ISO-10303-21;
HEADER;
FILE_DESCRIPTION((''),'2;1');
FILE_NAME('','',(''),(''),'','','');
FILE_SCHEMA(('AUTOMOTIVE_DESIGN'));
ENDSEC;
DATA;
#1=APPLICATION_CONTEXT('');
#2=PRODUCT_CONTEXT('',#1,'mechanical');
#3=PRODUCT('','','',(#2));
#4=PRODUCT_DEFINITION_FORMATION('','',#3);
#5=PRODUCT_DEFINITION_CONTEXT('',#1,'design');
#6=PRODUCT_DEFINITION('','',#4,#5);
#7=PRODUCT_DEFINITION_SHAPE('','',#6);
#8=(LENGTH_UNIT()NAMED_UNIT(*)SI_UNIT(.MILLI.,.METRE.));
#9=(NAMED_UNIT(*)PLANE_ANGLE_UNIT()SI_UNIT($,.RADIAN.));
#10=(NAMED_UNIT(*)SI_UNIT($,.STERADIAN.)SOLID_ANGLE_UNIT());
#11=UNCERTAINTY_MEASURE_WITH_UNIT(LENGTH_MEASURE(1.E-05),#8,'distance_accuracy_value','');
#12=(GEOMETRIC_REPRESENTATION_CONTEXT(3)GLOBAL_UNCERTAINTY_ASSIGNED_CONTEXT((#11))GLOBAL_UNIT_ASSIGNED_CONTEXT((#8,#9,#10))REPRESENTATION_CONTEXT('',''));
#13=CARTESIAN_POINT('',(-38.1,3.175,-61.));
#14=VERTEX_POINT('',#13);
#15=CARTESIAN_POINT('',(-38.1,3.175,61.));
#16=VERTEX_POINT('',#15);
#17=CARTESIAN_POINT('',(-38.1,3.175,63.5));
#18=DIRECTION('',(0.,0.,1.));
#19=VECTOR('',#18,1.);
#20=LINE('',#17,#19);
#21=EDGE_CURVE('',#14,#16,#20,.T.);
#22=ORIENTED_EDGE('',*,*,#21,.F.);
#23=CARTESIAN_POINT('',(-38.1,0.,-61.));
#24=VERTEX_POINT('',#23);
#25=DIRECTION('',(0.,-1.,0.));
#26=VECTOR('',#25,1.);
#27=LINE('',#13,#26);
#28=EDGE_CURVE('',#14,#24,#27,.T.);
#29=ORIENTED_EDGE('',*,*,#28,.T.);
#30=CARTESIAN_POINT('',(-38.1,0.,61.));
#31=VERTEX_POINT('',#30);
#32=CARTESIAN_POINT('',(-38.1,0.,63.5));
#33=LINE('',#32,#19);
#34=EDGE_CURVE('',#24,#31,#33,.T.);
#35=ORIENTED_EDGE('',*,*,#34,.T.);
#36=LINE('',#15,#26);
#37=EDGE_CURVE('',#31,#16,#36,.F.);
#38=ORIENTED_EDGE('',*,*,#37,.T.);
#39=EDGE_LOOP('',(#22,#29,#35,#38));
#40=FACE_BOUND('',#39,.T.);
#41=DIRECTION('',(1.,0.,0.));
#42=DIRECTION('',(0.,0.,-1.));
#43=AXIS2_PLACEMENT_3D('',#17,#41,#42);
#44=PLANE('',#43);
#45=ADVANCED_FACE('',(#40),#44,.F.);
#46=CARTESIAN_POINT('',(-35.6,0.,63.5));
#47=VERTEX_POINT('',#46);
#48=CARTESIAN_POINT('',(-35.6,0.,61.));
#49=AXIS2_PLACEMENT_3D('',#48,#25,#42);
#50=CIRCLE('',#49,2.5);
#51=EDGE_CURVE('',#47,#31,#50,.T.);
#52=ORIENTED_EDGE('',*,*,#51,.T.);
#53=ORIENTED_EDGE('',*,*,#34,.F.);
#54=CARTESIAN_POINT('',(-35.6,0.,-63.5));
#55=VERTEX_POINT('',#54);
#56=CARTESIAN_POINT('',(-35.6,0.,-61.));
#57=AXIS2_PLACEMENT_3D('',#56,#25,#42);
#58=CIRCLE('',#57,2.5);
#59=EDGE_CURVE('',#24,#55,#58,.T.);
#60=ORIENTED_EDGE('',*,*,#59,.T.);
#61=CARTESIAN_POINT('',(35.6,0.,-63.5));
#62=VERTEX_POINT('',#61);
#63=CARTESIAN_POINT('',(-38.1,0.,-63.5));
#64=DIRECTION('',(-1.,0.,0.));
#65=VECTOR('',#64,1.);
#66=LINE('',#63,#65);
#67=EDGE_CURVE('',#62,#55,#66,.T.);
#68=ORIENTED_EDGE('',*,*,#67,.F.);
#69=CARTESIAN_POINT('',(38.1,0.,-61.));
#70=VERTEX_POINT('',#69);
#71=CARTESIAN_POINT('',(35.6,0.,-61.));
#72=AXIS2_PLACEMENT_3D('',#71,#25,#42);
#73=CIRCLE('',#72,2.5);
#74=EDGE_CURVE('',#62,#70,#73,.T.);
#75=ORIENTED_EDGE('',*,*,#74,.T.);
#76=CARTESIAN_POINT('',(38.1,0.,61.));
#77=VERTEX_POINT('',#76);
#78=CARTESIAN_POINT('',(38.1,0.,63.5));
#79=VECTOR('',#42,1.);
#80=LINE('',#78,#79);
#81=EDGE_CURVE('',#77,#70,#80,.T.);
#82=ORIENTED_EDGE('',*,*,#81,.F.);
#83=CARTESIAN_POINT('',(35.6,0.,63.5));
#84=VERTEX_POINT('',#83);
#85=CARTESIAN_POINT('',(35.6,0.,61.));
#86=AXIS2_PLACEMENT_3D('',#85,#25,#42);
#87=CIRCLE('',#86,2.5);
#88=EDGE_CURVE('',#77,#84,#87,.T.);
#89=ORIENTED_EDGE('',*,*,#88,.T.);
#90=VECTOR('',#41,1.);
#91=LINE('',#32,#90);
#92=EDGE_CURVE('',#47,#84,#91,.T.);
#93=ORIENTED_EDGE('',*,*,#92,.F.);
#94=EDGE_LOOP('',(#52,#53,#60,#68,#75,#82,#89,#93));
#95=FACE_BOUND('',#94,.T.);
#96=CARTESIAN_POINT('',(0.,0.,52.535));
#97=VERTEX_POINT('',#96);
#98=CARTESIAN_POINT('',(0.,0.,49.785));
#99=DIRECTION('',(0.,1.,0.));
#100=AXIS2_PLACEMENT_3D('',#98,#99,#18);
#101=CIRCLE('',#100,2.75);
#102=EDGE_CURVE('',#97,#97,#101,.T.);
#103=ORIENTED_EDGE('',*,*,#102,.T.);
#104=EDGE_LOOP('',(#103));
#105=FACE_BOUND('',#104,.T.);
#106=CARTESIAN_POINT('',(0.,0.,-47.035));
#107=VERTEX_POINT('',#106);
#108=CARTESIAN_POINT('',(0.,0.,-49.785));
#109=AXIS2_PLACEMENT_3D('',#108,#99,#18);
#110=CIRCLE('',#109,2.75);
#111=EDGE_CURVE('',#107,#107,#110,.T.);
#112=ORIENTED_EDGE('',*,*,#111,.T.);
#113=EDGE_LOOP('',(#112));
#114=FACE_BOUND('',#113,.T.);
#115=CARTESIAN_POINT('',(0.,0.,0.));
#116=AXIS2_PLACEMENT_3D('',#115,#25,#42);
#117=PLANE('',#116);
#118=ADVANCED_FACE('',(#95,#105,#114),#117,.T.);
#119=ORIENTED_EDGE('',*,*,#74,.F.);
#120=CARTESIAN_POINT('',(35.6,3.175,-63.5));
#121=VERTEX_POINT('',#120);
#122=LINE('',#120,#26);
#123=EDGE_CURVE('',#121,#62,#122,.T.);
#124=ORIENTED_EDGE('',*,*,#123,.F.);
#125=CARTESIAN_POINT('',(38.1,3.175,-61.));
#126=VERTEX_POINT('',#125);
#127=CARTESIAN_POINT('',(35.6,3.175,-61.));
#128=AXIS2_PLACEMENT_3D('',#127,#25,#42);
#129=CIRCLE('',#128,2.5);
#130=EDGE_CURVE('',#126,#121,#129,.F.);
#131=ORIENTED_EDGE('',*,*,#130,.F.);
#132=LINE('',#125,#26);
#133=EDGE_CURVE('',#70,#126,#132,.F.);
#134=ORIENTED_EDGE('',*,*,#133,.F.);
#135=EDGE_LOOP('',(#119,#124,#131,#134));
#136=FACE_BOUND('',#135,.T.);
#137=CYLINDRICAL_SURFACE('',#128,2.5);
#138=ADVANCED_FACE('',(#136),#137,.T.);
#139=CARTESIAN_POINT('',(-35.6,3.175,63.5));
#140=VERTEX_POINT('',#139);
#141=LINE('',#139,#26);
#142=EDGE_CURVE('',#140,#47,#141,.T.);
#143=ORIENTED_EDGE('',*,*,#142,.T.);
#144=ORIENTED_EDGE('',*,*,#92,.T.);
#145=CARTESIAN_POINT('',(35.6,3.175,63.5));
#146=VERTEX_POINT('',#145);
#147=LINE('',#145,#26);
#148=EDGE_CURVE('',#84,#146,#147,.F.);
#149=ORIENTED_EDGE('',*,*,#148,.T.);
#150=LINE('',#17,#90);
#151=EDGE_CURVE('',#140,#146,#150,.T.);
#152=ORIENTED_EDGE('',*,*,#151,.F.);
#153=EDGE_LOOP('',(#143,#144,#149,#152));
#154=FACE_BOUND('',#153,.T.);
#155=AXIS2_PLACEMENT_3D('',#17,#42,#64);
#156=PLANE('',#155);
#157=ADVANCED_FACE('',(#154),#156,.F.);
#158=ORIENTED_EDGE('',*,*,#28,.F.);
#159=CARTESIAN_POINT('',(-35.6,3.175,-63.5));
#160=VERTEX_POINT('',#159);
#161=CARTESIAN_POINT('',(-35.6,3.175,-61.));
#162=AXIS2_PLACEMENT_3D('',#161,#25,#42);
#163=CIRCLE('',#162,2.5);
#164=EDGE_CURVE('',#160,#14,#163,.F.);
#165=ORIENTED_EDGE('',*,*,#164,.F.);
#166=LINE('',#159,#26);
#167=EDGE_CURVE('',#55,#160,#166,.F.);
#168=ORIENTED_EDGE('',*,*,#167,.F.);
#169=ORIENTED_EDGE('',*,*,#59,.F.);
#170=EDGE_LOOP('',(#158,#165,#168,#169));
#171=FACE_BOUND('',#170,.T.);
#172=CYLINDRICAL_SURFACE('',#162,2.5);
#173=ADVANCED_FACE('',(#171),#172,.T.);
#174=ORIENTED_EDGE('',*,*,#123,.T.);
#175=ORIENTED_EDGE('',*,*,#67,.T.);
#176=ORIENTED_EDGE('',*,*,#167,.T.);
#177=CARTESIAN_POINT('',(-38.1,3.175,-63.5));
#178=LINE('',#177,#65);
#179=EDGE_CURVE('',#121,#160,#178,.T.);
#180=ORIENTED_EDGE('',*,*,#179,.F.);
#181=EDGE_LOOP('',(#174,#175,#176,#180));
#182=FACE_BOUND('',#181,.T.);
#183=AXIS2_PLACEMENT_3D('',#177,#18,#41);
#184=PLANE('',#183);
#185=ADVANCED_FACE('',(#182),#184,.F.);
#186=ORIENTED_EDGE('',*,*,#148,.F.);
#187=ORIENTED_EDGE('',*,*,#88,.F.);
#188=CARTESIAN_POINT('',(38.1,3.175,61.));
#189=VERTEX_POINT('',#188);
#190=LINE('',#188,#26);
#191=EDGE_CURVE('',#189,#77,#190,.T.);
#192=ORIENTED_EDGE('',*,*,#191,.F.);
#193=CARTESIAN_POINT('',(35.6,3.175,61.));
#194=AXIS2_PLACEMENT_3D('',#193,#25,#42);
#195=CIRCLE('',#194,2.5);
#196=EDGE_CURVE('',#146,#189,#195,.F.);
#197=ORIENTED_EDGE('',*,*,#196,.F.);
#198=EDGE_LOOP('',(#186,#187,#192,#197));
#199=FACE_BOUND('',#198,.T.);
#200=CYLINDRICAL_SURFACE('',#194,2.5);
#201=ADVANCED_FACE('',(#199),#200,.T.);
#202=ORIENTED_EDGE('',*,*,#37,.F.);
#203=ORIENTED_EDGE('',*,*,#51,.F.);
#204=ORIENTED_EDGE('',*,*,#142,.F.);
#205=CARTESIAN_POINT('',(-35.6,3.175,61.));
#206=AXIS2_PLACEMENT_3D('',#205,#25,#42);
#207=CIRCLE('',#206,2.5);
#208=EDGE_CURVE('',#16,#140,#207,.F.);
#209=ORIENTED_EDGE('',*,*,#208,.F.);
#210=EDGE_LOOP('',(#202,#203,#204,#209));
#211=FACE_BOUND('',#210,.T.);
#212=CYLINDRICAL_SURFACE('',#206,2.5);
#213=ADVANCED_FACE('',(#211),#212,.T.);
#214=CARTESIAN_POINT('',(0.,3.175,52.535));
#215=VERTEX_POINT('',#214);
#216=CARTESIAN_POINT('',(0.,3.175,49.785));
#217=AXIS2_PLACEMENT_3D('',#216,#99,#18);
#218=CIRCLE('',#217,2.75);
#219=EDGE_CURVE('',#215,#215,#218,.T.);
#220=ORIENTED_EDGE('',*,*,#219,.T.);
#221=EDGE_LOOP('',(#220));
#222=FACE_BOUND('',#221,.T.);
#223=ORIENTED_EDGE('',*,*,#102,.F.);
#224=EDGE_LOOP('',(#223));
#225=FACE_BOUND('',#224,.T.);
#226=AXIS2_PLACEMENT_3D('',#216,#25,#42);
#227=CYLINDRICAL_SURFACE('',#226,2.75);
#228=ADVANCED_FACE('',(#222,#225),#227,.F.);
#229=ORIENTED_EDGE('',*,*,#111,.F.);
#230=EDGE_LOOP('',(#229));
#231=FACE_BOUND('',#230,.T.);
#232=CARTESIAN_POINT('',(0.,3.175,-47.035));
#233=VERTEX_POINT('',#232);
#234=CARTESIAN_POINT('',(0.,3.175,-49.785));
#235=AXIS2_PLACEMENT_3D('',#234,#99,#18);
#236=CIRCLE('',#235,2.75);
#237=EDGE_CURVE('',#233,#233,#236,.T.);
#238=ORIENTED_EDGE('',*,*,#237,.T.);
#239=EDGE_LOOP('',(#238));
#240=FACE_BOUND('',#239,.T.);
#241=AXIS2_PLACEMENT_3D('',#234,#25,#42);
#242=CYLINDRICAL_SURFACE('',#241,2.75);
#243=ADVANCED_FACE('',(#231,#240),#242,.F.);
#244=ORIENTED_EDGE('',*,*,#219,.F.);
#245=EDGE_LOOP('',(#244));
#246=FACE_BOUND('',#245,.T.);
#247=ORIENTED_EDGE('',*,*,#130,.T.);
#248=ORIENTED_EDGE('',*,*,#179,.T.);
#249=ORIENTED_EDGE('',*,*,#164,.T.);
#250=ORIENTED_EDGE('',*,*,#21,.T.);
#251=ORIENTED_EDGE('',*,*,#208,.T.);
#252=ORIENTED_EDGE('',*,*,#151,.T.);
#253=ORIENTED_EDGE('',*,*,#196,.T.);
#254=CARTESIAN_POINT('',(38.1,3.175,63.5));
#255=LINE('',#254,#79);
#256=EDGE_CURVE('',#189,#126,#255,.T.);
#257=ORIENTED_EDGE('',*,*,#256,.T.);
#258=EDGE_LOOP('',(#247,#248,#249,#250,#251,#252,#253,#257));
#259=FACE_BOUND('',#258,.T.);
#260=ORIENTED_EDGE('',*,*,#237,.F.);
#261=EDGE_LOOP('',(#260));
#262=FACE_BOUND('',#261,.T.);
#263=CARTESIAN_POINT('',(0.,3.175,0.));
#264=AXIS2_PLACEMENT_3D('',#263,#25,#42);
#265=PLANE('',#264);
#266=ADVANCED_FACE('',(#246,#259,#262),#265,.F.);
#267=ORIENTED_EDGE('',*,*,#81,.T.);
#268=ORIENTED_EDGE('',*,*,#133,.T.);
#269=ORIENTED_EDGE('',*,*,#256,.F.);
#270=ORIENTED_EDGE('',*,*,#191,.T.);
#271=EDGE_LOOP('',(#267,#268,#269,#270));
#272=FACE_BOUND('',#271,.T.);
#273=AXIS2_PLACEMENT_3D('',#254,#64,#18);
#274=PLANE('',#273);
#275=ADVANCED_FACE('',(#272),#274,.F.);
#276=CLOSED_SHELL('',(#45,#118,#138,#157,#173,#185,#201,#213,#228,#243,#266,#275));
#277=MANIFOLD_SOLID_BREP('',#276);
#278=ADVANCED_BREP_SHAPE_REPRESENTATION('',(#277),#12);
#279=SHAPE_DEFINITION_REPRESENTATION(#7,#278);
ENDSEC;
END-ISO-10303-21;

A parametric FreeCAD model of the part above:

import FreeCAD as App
import Part
import Sketcher
Q = App.Units.Quantity


def edges_at(feature, points):
    """Names of the edges that pass closest to the given points."""
    edges = feature.Shape.Edges
    near = lambda p: min(range(len(edges)), key=lambda i: edges[i].distToShape(Part.Vertex(*p))[0])
    return sorted({f"Edge{near(p) + 1}" for p in points})

doc = App.newDocument("Part")
params = doc.addObject("Spreadsheet::Sheet", "Params")
for row, (alias, value) in enumerate([
    ("sketch1_width", "3 in"),
    ("sketch1_height", "5 in"),
    ("pad1_length", "0.125 in"),
    ("fillet_radius", "2.5 mm"),
], start=1):
    params.set(f"A{row}", alias)
    params.set(f"B{row}", "=" + value)
    params.setAlias(f"B{row}", alias)

body = doc.addObject("PartDesign::Body", "Body")

# Sketch on XZ plane
sketch1 = doc.addObject("Sketcher::SketchObject", "Sketch")
body.addObject(sketch1)
sketch1.AttachmentSupport = (doc.XZ_Plane, [""])
sketch1.MapMode = "FlatFace"
sketch1.addGeometry(Part.LineSegment(App.Vector(-38.1, -63.5, 0), App.Vector(-38.1, 63.5, 0)), False)
sketch1.addGeometry(Part.LineSegment(App.Vector(-38.1, 63.5, 0), App.Vector(38.1, 63.5, 0)), False)
sketch1.addGeometry(Part.LineSegment(App.Vector(38.1, 63.5, 0), App.Vector(38.1, -63.5, 0)), False)
sketch1.addGeometry(Part.LineSegment(App.Vector(38.1, -63.5, 0), App.Vector(-38.1, -63.5, 0)), False)
sketch1.addGeometry(Part.Circle(App.Vector(0, 49.8, 0), App.Vector(0, 0, 1), 2.8), False)
sketch1.addGeometry(Part.Circle(App.Vector(0, -49.8, 0), App.Vector(0, 0, 1), 2.8), False)
sketch1.addConstraint(Sketcher.Constraint("Coincident", 0, 2, 1, 1))
sketch1.addConstraint(Sketcher.Constraint("Coincident", 1, 2, 2, 1))
sketch1.addConstraint(Sketcher.Constraint("Coincident", 2, 2, 3, 1))
sketch1.addConstraint(Sketcher.Constraint("Coincident", 3, 2, 0, 1))
sketch1.addConstraint(Sketcher.Constraint("Vertical", 0))
sketch1.addConstraint(Sketcher.Constraint("Horizontal", 1))
sketch1.addConstraint(Sketcher.Constraint("Vertical", 2))
sketch1.addConstraint(Sketcher.Constraint("Horizontal", 3))
sketch1.addConstraint(Sketcher.Constraint("Equal", 4, 5))
sketch1.addConstraint(Sketcher.Constraint("Symmetric", 4, 3, 5, 3, -1, 1))
sketch1.addConstraint(Sketcher.Constraint("Symmetric", 0, 2, 2, 2, -1, 1))
sketch1.addConstraint(Sketcher.Constraint("PointOnObject", 4, 3, -2))
sketch1.addConstraint(Sketcher.Constraint("DistanceX", 1, 1, 1, 2, Q("3 in")))
sketch1.addConstraint(Sketcher.Constraint("DistanceY", 0, 1, 0, 2, Q("5 in")))
sketch1.addConstraint(Sketcher.Constraint("Diameter", 4, 5.5))
sketch1.addConstraint(Sketcher.Constraint("DistanceY", -1, 1, 4, 3, 49.785))
sketch1.setExpression("Constraints[12]", "Params.sketch1_width")
sketch1.setExpression("Constraints[13]", "Params.sketch1_height")
pad1 = doc.addObject("PartDesign::Pad", "Pad")
body.addObject(pad1)
pad1.Profile = sketch1
pad1.setExpression("Length", "Params.pad1_length")
pad1.Reversed = True
doc.recompute()

fillet = doc.addObject("PartDesign::Fillet", "Fillet")
body.addObject(fillet)
fillet.Base = (pad1, edges_at(pad1, [
    (38.1, 1.587, 63.5),
    (-38.1, 1.587, 63.5),
    (-38.1, 1.587, -63.5),
    (38.1, 1.587, -63.5),
]))
fillet.setExpression("Radius", "Params.fillet_radius")

doc.recompute()
